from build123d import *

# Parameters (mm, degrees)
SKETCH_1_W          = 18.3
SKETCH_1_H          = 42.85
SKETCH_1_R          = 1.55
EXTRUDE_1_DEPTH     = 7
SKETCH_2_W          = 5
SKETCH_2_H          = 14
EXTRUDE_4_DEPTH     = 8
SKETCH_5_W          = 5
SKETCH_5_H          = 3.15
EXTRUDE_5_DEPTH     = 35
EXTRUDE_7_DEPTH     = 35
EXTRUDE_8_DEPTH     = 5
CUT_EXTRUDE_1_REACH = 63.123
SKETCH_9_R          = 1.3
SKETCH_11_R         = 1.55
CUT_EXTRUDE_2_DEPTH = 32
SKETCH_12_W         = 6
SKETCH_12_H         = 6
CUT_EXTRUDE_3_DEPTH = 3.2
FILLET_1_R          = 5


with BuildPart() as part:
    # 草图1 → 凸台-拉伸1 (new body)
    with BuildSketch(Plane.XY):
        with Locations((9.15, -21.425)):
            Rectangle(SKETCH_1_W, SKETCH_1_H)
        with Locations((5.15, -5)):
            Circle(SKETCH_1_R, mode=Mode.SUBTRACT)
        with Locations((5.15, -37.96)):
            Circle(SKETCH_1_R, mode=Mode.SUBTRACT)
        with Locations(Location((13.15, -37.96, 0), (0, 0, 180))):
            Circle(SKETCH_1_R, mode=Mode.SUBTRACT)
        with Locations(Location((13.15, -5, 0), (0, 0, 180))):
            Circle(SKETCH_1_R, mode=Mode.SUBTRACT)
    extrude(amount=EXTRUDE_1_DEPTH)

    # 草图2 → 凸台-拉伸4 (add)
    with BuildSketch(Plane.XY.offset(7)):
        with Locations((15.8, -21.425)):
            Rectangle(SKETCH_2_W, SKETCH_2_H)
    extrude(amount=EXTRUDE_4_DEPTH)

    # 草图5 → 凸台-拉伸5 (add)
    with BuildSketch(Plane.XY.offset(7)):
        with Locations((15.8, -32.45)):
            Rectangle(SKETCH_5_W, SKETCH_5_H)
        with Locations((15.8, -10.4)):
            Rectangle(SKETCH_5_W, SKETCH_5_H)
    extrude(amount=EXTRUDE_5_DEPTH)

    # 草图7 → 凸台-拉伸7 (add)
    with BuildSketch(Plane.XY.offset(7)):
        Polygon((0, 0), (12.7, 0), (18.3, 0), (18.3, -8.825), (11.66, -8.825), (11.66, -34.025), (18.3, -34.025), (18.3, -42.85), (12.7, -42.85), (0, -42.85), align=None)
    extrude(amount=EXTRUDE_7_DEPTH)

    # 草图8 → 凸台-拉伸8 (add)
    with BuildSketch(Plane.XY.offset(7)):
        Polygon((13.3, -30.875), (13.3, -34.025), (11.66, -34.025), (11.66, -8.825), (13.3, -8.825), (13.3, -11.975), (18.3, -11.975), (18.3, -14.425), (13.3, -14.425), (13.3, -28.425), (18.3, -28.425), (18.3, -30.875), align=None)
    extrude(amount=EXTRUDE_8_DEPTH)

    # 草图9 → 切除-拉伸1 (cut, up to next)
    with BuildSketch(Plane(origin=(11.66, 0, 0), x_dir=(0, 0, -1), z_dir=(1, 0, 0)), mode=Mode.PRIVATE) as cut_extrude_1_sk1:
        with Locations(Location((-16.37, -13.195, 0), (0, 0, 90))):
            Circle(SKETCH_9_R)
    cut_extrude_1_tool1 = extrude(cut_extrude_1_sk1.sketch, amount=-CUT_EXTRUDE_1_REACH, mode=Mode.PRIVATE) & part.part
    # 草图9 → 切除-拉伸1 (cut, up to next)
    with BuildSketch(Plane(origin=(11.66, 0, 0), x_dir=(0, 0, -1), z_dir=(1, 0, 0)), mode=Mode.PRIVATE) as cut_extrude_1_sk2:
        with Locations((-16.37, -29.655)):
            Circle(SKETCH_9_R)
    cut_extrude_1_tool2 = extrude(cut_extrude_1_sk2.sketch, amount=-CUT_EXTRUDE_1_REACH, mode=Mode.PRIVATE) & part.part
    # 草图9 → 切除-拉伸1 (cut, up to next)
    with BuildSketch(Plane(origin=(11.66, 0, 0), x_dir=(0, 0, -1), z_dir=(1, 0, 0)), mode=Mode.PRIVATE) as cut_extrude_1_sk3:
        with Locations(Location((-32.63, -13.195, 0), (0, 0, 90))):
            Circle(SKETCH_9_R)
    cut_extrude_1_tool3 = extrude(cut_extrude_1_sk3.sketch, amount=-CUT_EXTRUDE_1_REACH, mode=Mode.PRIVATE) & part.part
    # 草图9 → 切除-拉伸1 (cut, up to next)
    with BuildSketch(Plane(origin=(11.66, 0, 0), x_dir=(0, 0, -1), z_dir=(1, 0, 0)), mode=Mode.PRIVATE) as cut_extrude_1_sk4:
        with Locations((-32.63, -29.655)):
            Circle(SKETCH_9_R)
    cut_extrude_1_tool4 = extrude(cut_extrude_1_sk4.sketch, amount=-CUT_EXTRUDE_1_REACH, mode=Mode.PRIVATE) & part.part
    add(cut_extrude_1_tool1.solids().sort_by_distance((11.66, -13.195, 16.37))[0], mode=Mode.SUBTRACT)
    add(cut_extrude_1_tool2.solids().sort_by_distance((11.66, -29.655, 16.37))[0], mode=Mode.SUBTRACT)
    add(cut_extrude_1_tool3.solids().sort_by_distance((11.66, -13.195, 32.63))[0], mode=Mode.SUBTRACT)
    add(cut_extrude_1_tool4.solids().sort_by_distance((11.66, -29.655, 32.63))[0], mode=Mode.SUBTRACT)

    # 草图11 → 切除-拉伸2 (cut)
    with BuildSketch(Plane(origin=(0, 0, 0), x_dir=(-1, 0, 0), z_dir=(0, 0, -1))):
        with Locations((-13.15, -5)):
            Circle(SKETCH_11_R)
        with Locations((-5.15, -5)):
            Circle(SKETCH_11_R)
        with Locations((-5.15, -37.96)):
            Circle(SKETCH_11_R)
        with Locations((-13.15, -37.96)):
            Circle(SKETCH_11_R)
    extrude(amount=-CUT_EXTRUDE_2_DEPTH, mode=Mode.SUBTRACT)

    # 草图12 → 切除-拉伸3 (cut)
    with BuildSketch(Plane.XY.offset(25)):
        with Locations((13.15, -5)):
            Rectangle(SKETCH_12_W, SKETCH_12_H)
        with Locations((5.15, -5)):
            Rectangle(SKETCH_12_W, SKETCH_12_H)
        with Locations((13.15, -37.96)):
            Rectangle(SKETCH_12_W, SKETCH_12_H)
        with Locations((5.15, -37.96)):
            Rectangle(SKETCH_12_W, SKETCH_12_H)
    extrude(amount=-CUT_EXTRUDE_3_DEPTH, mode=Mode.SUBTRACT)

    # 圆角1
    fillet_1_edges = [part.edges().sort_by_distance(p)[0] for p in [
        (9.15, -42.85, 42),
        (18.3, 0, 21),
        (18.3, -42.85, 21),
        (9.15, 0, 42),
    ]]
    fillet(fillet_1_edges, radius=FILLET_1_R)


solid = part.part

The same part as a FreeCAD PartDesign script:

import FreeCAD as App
import Part
import Sketcher
Q = App.Units.Quantity


def edges_at(feature, points):
    """Names of the edges that pass closest to the given points."""
    edges = feature.Shape.Edges
    near = lambda p: min(range(len(edges)), key=lambda i: edges[i].distToShape(Part.Vertex(*p))[0])
    return sorted({f"Edge{near(p) + 1}" for p in points})


def add_polygon(sketch, points):
    """Adds a closed chain of lines whose ends are joined by coincident constraints."""
    first, n = sketch.GeometryCount, len(points)
    for a, b in zip(points, points[1:] + points[:1]):
        sketch.addGeometry(Part.LineSegment(App.Vector(*a, 0), App.Vector(*b, 0)), False)
    for i in range(n):
        sketch.addConstraint(Sketcher.Constraint("Coincident", first + i, 2, first + (i + 1) % n, 1))

doc = App.newDocument("Part")
body = doc.addObject("PartDesign::Body", "Body")

# Sketch on XY plane
sketch1 = body.newObject("Sketcher::SketchObject", "Sketch")
sketch1.AttachmentSupport = (doc.getObject("XY_Plane"), [""])
sketch1.MapMode = "FlatFace"
add_polygon(sketch1, [(0, 0), (0, -42.9), (18.3, -42.9), (18.3, 0)])  # lines 0-3
sketch1.addGeometry(Part.Circle(App.Vector(5.2, -38, 0), App.Vector(0, 0, 1), 1.6), False)  # 4
sketch1.addGeometry(Part.Circle(App.Vector(13.2, -38, 0), App.Vector(0, 0, 1), 1.6), False)  # 5
sketch1.addGeometry(Part.Circle(App.Vector(5.2, -5, 0), App.Vector(0, 0, 1), 1.6), False)  # 6
sketch1.addGeometry(Part.Circle(App.Vector(13.2, -5, 0), App.Vector(0, 0, 1), 1.6), False)  # 7
sketch1.addConstraint([
    Sketcher.Constraint("Vertical", 0),
    Sketcher.Constraint("Horizontal", 1),
    Sketcher.Constraint("Vertical", 2),
    Sketcher.Constraint("Horizontal", 3),
    Sketcher.Constraint("Coincident", 3, 2, -1, 1),
    Sketcher.Constraint("Equal", 4, 5),
    Sketcher.Constraint("Equal", 5, 6),
    Sketcher.Constraint("Equal", 6, 7),
    Sketcher.Constraint("Horizontal", 4, 3, 5, 3),
    Sketcher.Constraint("Horizontal", 6, 3, 7, 3),
    Sketcher.Constraint("Vertical", 4, 3, 6, 3),
    Sketcher.Constraint("Vertical", 5, 3, 7, 3),
    Sketcher.Constraint("Diameter", 4, Q("3.1 mm")),
    Sketcher.Constraint("DistanceX", 1, 1, 1, 2, Q("18.3 mm")),
    Sketcher.Constraint("DistanceY", 6, 3, -1, 1, Q("5 mm")),
    Sketcher.Constraint("DistanceX", 4, 3, 5, 3, Q("8 mm")),
    Sketcher.Constraint("DistanceY", 0, 2, 0, 1, Q("42.85 mm")),
    Sketcher.Constraint("DistanceX", -1, 1, 4, 3, Q("5.15 mm")),
    Sketcher.Constraint("DistanceY", 4, 3, -1, 1, Q("37.96 mm")),
])
pad1 = body.newObject("PartDesign::Pad", "Pad")
pad1.Profile = sketch1
pad1.Length = 7

# Sketch on XY plane
sketch2 = body.newObject("Sketcher::SketchObject", "Sketch001")
sketch2.AttachmentSupport = (doc.getObject("XY_Plane"), [""])
sketch2.MapMode = "FlatFace"
sketch2.AttachmentOffset = App.Placement(App.Vector(0, 0, 7), App.Rotation())
add_polygon(sketch2, [(13, -14), (13, -28), (18, -28), (18, -14)])  # lines 0-3
sketch2.addConstraint([
    Sketcher.Constraint("Vertical", 0),
    Sketcher.Constraint("Horizontal", 1),
    Sketcher.Constraint("Vertical", 2),
    Sketcher.Constraint("Horizontal", 3),
    Sketcher.Constraint("DistanceX", 1, 1, 1, 2, Q("5 mm")),
    Sketcher.Constraint("DistanceY", 0, 2, 0, 1, Q("14 mm")),
    Sketcher.Constraint("DistanceX", -1, 1, 0, 2, Q("13.3 mm")),
    Sketcher.Constraint("DistanceY", 0, 2, -1, 1, Q("28.425 mm")),
])
pad2 = body.newObject("PartDesign::Pad", "Pad001")
pad2.Profile = sketch2
pad2.Length = 8

# Sketch on XY plane
sketch3 = body.newObject("Sketcher::SketchObject", "Sketch002")
sketch3.AttachmentSupport = (doc.getObject("XY_Plane"), [""])
sketch3.MapMode = "FlatFace"
sketch3.AttachmentOffset = App.Placement(App.Vector(0, 0, 7), App.Rotation())
add_polygon(sketch3, [(13.3, -30.9), (13.3, -34), (18.3, -34), (18.3, -30.9)])  # lines 0-3
add_polygon(sketch3, [(13.3, -8.8), (13.3, -12), (18.3, -12), (18.3, -8.8)])  # lines 4-7
sketch3.addConstraint([
    Sketcher.Constraint("Vertical", 0),
    Sketcher.Constraint("Horizontal", 1),
    Sketcher.Constraint("Vertical", 2),
    Sketcher.Constraint("Horizontal", 3),
    Sketcher.Constraint("Vertical", 4),
    Sketcher.Constraint("Horizontal", 5),
    Sketcher.Constraint("Vertical", 6),
    Sketcher.Constraint("Horizontal", 7),
    Sketcher.Constraint("Vertical", 3, 2, 4, 2),
    Sketcher.Constraint("Vertical", 2, 2, 5, 2),
    Sketcher.Constraint("Equal", 2, 4),
    Sketcher.Constraint("DistanceX", 1, 1, 1, 2, Q("5 mm")),
    Sketcher.Constraint("DistanceY", 0, 2, 0, 1, Q("3.15 mm")),
    Sketcher.Constraint("DistanceX", -1, 1, 0, 2, Q("13.3 mm")),
    Sketcher.Constraint("DistanceY", 3, 2, 4, 2, Q("18.9 mm")),
    Sketcher.Constraint("DistanceY", 0, 2, -1, 1, Q("34.025 mm")),
])
pad3 = body.newObject("PartDesign::Pad", "Pad002")
pad3.Profile = sketch3
pad3.Length = 35

# Sketch on XY plane
sketch4 = body.newObject("Sketcher::SketchObject", "Sketch003")
sketch4.AttachmentSupport = (doc.getObject("XY_Plane"), [""])
sketch4.MapMode = "FlatFace"
sketch4.AttachmentOffset = App.Placement(App.Vector(0, 0, 7), App.Rotation())
add_polygon(sketch4, [(18, 0), (0, 0), (0, -43), (18, -43), (18, -34), (12, -34), (12, -9), (18, -9)])  # lines 0-7
sketch4.addConstraint([
    Sketcher.Constraint("Horizontal", 0),
    Sketcher.Constraint("Vertical", 1),
    Sketcher.Constraint("Horizontal", 2),
    Sketcher.Constraint("Vertical", 3),
    Sketcher.Constraint("Horizontal", 4),
    Sketcher.Constraint("Vertical", 5),
    Sketcher.Constraint("Horizontal", 6),
    Sketcher.Constraint("Vertical", 7),
    Sketcher.Constraint("Coincident", 0, 2, -1, 1),
    Sketcher.Constraint("Vertical", 3, 2, 6, 2),
    Sketcher.Constraint("Equal", 3, 7),
    Sketcher.Constraint("DistanceX", 0, 2, 0, 1, Q("18.3 mm")),
    Sketcher.Constraint("DistanceY", 5, 1, 5, 2, Q("25.2 mm")),
    Sketcher.Constraint("DistanceX", 4, 2, 4, 1, Q("6.64 mm")),
    Sketcher.Constraint("DistanceY", 1, 2, 1, 1, Q("42.85 mm")),
])
pad4 = body.newObject("PartDesign::Pad", "Pad003")
pad4.Profile = sketch4
pad4.Length = 35

# Sketch on XY plane
sketch5 = body.newObject("Sketcher::SketchObject", "Sketch004")
sketch5.AttachmentSupport = (doc.getObject("XY_Plane"), [""])
sketch5.MapMode = "FlatFace"
sketch5.AttachmentOffset = App.Placement(App.Vector(0, 0, 7), App.Rotation())
add_polygon(sketch5, [(13.3, -34), (13.3, -30.9), (18.3, -30.9), (18.3, -28.4), (13.3, -28.4), (13.3, -14.4), (18.3, -14.4), (18.3, -12), (13.3, -12), (13.3, -8.8), (11.7, -8.8), (11.7, -34)])  # lines 0-11
sketch5.addConstraint([
    Sketcher.Constraint("Vertical", 0),
    Sketcher.Constraint("Horizontal", 1),
    Sketcher.Constraint("Vertical", 2),
    Sketcher.Constraint("Horizontal", 3),
    Sketcher.Constraint("Vertical", 4),
    Sketcher.Constraint("Horizontal", 5),
    Sketcher.Constraint("Vertical", 6),
    Sketcher.Constraint("Horizontal", 7),
    Sketcher.Constraint("Vertical", 8),
    Sketcher.Constraint("Horizontal", 9),
    Sketcher.Constraint("Vertical", 10),
    Sketcher.Constraint("Horizontal", 11),
    Sketcher.Constraint("Vertical", 0, 2, 3, 2),
    Sketcher.Constraint("Vertical", 2, 2, 5, 2),
    Sketcher.Constraint("Vertical", 4, 2, 7, 2),
    Sketcher.Constraint("Equal", 2, 6),
    Sketcher.Constraint("Equal", 0, 8),
    Sketcher.Constraint("DistanceX", 1, 1, 1, 2, Q("5 mm")),
    Sketcher.Constraint("DistanceY", 4, 1, 4, 2, Q("14 mm")),
    Sketcher.Constraint("DistanceY", 10, 2, 10, 1, Q("25.2 mm")),
    Sketcher.Constraint("DistanceX", 9, 2, 9, 1, Q("1.64 mm")),
    Sketcher.Constraint("DistanceY", 0, 1, 0, 2, Q("3.15 mm")),
    Sketcher.Constraint("DistanceX", -1, 1, 0, 2, Q("13.3 mm")),
    Sketcher.Constraint("DistanceY", 0, 2, -1, 1, Q("30.875 mm")),
])
pad5 = body.newObject("PartDesign::Pad", "Pad004")
pad5.Profile = sketch5
pad5.Length = 5

# Sketch on YZ plane
sketch6 = body.newObject("Sketcher::SketchObject", "Sketch005")
sketch6.AttachmentSupport = (doc.getObject("YZ_Plane"), [""])
sketch6.MapMode = "FlatFace"
sketch6.AttachmentOffset = App.Placement(App.Vector(0, 0, 11.66), App.Rotation())
sketch6.addGeometry(Part.Circle(App.Vector(-13.2, 16.4, 0), App.Vector(0, 0, 1), 1.3), False)
sketch6.addConstraint([
    Sketcher.Constraint("Diameter", 0, Q("2.6 mm")),
    Sketcher.Constraint("DistanceY", -1, 1, 0, 3, Q("16.37 mm")),
    Sketcher.Constraint("DistanceX", 0, 3, -1, 1, Q("13.195 mm")),
])
pocket1 = body.newObject("PartDesign::Pocket", "Pocket")
pocket1.Profile = sketch6
pocket1.Type = "UpToFirst"

# Sketch on YZ plane
sketch7 = body.newObject("Sketcher::SketchObject", "Sketch006")
sketch7.AttachmentSupport = (doc.getObject("YZ_Plane"), [""])
sketch7.MapMode = "FlatFace"
sketch7.AttachmentOffset = App.Placement(App.Vector(0, 0, 11.66), App.Rotation())
sketch7.addGeometry(Part.Circle(App.Vector(-29.7, 16.4, 0), App.Vector(0, 0, 1), 1.3), False)
sketch7.addConstraint([
    Sketcher.Constraint("Diameter", 0, Q("2.6 mm")),
    Sketcher.Constraint("DistanceY", -1, 1, 0, 3, Q("16.37 mm")),
    Sketcher.Constraint("DistanceX", 0, 3, -1, 1, Q("29.655 mm")),
])
pocket2 = body.newObject("PartDesign::Pocket", "Pocket001")
pocket2.Profile = sketch7
pocket2.Type = "UpToFirst"

# Sketch on YZ plane
sketch8 = body.newObject("Sketcher::SketchObject", "Sketch007")
sketch8.AttachmentSupport = (doc.getObject("YZ_Plane"), [""])
sketch8.MapMode = "FlatFace"
sketch8.AttachmentOffset = App.Placement(App.Vector(0, 0, 11.66), App.Rotation())
sketch8.addGeometry(Part.Circle(App.Vector(-13.2, 32.6, 0), App.Vector(0, 0, 1), 1.3), False)
sketch8.addConstraint([
    Sketcher.Constraint("Diameter", 0, Q("2.6 mm")),
    Sketcher.Constraint("DistanceY", -1, 1, 0, 3, Q("32.63 mm")),
    Sketcher.Constraint("DistanceX", 0, 3, -1, 1, Q("13.195 mm")),
])
pocket3 = body.newObject("PartDesign::Pocket", "Pocket002")
pocket3.Profile = sketch8
pocket3.Type = "UpToFirst"

# Sketch on YZ plane
sketch9 = body.newObject("Sketcher::SketchObject", "Sketch008")
sketch9.AttachmentSupport = (doc.getObject("YZ_Plane"), [""])
sketch9.MapMode = "FlatFace"
sketch9.AttachmentOffset = App.Placement(App.Vector(0, 0, 11.66), App.Rotation())
sketch9.addGeometry(Part.Circle(App.Vector(-29.7, 32.6, 0), App.Vector(0, 0, 1), 1.3), False)
sketch9.addConstraint([
    Sketcher.Constraint("Diameter", 0, Q("2.6 mm")),
    Sketcher.Constraint("DistanceY", -1, 1, 0, 3, Q("32.63 mm")),
    Sketcher.Constraint("DistanceX", 0, 3, -1, 1, Q("29.655 mm")),
])
pocket4 = body.newObject("PartDesign::Pocket", "Pocket003")
pocket4.Profile = sketch9
pocket4.Type = "UpToFirst"

# Sketch on XY plane
sketch10 = body.newObject("Sketcher::SketchObject", "Sketch009")
sketch10.AttachmentSupport = (doc.getObject("XY_Plane"), [""])
sketch10.MapMode = "FlatFace"
sketch10.addGeometry([
    Part.Circle(App.Vector(13.2, -5, 0), App.Vector(0, 0, 1), 1.6),
    Part.Circle(App.Vector(5.2, -5, 0), App.Vector(0, 0, 1), 1.6),
    Part.Circle(App.Vector(5.2, -38, 0), App.Vector(0, 0, 1), 1.6),
    Part.Circle(App.Vector(13.2, -38, 0), App.Vector(0, 0, 1), 1.6),
], False)
sketch10.addConstraint([
    Sketcher.Constraint("Equal", 0, 1),
    Sketcher.Constraint("Equal", 1, 2),
    Sketcher.Constraint("Equal", 2, 3),
    Sketcher.Constraint("Horizontal", 0, 3, 1, 3),
    Sketcher.Constraint("Horizontal", 2, 3, 3, 3),
    Sketcher.Constraint("Vertical", 1, 3, 2, 3),
    Sketcher.Constraint("Vertical", 0, 3, 3, 3),
    Sketcher.Constraint("Diameter", 0, Q("3.1 mm")),
    Sketcher.Constraint("DistanceY", 0, 3, -1, 1, Q("5 mm")),
    Sketcher.Constraint("DistanceX", 1, 3, 0, 3, Q("8 mm")),
    Sketcher.Constraint("DistanceX", -1, 1, 0, 3, Q("13.15 mm")),
    Sketcher.Constraint("DistanceY", 2, 3, -1, 1, Q("37.96 mm")),
])
pocket5 = body.newObject("PartDesign::Pocket", "Pocket004")
pocket5.Profile = sketch10
pocket5.Length = 32
pocket5.Reversed = True

# Sketch on XY plane
sketch11 = body.newObject("Sketcher::SketchObject", "Sketch010")
sketch11.AttachmentSupport = (doc.getObject("XY_Plane"), [""])
sketch11.MapMode = "FlatFace"
sketch11.AttachmentOffset = App.Placement(App.Vector(0, 0, 25), App.Rotation())
add_polygon(sketch11, [(10, -2), (10, -8), (16, -8), (16, -2)])  # lines 0-3
add_polygon(sketch11, [(2, -2), (2, -8), (8, -8), (8, -2)])  # lines 4-7
add_polygon(sketch11, [(10, -35), (10, -41), (16, -41), (16, -35)])  # lines 8-11
add_polygon(sketch11, [(2, -35), (2, -41), (8, -41), (8, -35)])  # lines 12-15
sketch11.addConstraint([
    Sketcher.Constraint("Vertical", 0),
    Sketcher.Constraint("Horizontal", 1),
    Sketcher.Constraint("Vertical", 2),
    Sketcher.Constraint("Horizontal", 3),
    Sketcher.Constraint("Vertical", 4),
    Sketcher.Constraint("Horizontal", 5),
    Sketcher.Constraint("Vertical", 6),
    Sketcher.Constraint("Horizontal", 7),
    Sketcher.Constraint("Vertical", 8),
    Sketcher.Constraint("Horizontal", 9),
    Sketcher.Constraint("Vertical", 10),
    Sketcher.Constraint("Horizontal", 11),
    Sketcher.Constraint("Vertical", 12),
    Sketcher.Constraint("Horizontal", 13),
    Sketcher.Constraint("Vertical", 14),
    Sketcher.Constraint("Horizontal", 15),
    Sketcher.Constraint("Horizontal", 1, 2, 4, 2),
    Sketcher.Constraint("Horizontal", 3, 2, 6, 2),
    Sketcher.Constraint("Horizontal", 9, 2, 12, 2),
    Sketcher.Constraint("Horizontal", 11, 2, 14, 2),
    Sketcher.Constraint("Vertical", 3, 2, 8, 2),
    Sketcher.Constraint("Vertical", 2, 2, 9, 2),
    Sketcher.Constraint("Vertical", 7, 2, 12, 2),
    Sketcher.Constraint("Vertical", 6, 2, 13, 2),
    Sketcher.Constraint("Equal", 3, 5),
    Sketcher.Constraint("Equal", 15, 0),
    Sketcher.Constraint("Equal", 6, 8),
    Sketcher.Constraint("DistanceX", 1, 1, 1, 2, Q("6 mm")),
    Sketcher.Constraint("DistanceY", 0, 2, -1, 1, Q("8 mm")),
    Sketcher.Constraint("DistanceX", 4, 2, 0, 2, Q("8 mm")),
    Sketcher.Constraint("DistanceX", -1, 1, 0, 2, Q("10.15 mm")),
    Sketcher.Constraint("DistanceY", 8, 2, -1, 1, Q("40.96 mm")),
])
pocket6 = body.newObject("PartDesign::Pocket", "Pocket005")
pocket6.Profile = sketch11
pocket6.Length = 3.2
doc.recompute()

fillet = body.newObject("PartDesign::Fillet", "Fillet")
fillet.Base = (pocket6, edges_at(pocket6, [
    (9.15, -42.85, 42),
    (18.3, 0, 21),
    (18.3, -42.85, 21),
    (9.15, 0, 42),
]))
fillet.Radius = 5

doc.recompute()
